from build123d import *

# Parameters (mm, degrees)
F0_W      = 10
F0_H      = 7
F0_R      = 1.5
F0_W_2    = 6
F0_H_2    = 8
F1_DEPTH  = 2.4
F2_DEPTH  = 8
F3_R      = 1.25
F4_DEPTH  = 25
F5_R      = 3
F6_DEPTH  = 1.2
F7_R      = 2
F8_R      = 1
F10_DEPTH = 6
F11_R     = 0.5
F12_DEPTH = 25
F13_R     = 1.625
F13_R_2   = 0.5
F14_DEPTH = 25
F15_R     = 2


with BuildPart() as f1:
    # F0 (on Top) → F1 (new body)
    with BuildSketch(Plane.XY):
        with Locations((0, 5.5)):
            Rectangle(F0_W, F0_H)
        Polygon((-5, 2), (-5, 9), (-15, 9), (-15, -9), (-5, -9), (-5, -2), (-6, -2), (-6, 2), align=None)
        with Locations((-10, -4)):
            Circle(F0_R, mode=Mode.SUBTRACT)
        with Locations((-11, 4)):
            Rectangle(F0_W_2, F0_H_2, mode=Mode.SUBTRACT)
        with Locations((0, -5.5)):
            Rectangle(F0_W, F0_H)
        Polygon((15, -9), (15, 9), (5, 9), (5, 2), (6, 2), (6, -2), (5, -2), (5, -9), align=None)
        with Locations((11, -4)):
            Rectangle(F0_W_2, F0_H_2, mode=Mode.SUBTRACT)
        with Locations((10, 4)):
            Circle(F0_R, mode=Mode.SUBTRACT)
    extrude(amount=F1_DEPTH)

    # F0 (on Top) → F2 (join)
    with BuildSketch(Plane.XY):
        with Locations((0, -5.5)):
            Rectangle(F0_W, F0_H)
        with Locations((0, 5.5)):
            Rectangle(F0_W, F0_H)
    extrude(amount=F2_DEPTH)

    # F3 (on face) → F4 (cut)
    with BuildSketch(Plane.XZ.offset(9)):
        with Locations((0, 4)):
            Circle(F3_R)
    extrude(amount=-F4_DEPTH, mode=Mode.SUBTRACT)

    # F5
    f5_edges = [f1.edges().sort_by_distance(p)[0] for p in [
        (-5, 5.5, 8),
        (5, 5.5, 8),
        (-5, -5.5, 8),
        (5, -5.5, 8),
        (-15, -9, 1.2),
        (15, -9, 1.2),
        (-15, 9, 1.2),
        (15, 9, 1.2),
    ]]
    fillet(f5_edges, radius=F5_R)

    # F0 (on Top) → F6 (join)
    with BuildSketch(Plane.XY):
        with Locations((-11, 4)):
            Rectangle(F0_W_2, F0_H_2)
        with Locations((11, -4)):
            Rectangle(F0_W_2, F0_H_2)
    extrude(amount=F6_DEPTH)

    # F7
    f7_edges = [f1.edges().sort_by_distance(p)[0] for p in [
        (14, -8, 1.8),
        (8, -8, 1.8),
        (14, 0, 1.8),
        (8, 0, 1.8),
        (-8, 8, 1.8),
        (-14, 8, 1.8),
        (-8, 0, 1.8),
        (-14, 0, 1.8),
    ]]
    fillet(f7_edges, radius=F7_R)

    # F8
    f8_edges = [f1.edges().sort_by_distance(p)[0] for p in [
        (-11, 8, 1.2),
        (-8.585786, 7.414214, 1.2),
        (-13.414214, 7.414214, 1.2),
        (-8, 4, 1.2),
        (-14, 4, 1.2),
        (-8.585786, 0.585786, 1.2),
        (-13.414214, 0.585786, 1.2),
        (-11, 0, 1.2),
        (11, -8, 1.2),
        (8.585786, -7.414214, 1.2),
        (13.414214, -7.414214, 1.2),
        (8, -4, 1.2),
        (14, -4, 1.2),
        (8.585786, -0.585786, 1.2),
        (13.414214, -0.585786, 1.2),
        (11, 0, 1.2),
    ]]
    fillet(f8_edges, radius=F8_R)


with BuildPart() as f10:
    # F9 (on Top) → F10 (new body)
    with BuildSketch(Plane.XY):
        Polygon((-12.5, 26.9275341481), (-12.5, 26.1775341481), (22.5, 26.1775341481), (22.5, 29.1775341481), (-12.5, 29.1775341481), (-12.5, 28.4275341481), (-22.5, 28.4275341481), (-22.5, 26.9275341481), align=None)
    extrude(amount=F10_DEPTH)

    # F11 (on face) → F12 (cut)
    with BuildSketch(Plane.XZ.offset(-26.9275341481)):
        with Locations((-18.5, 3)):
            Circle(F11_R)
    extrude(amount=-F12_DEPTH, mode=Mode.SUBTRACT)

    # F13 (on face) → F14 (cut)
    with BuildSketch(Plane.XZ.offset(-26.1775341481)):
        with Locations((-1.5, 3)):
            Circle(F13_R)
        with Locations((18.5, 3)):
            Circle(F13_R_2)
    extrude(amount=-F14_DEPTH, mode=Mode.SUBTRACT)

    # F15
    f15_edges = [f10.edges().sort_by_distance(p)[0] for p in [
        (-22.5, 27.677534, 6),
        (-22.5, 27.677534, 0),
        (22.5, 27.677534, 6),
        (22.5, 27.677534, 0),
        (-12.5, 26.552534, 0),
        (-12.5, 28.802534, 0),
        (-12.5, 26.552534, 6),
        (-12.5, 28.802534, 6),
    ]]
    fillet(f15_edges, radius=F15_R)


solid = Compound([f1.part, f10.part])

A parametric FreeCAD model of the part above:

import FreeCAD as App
import Part
import Sketcher
Q = App.Units.Quantity


def edges_at(feature, points):
    """Names of the edges that pass closest to the given points."""
    edges = feature.Shape.Edges
    near = lambda p: min(range(len(edges)), key=lambda i: edges[i].distToShape(Part.Vertex(*p))[0])
    return sorted({f"Edge{near(p) + 1}" for p in points})


def add_polygon(sketch, points):
    """Adds a closed chain of lines whose ends are joined by coincident constraints."""
    first, n = sketch.GeometryCount, len(points)
    for a, b in zip(points, points[1:] + points[:1]):
        sketch.addGeometry(Part.LineSegment(App.Vector(*a, 0), App.Vector(*b, 0)), False)
    for i in range(n):
        sketch.addConstraint(Sketcher.Constraint("Coincident", first + i, 2, first + (i + 1) % n, 1))

doc = App.newDocument("Part")
params = doc.addObject("Spreadsheet::Sheet", "Params")
for row, (alias, value) in enumerate([
    ("sketch1_diameter", "3 mm"),
    ("sketch1_width", "30 mm"),
    ("sketch1_width2", "6 mm"),
    ("sketch1_width3", "12 mm"),
    ("sketch1_height", "18 mm"),
    ("pad1_length", "2.4 mm"),
    ("sketch2_width", "10 mm"),
    ("sketch2_height", "7 mm"),
    ("pad2_length", "8 mm"),
    ("sketch3_diameter", "2.5 mm"),
    ("pocket1_length", "25 mm"),
    ("fillet_radius", "3 mm"),
    ("sketch4_width", "6 mm"),
    ("sketch4_height", "8 mm"),
    ("pad3_length", "1.2 mm"),
    ("fillet2_radius", "2 mm"),
    ("fillet3_radius", "1 mm"),
    ("sketch5_width", "35 mm"),
    ("sketch5_width2", "10 mm"),
    ("sketch5_height", "3 mm"),
    ("sketch5_height2", "1.5 mm"),
    ("pad4_length", "6 mm"),
    ("sketch6_diameter", "1 mm"),
    ("pocket2_length", "25 mm"),
    ("sketch7_diameter", "1 mm"),
    ("sketch7_diameter2", "3.25 mm"),
    ("pocket3_length", "25 mm"),
    ("fillet4_radius", "2 mm"),
], start=1):
    params.set(f"A{row}", alias)
    params.set(f"B{row}", "=" + value)
    params.setAlias(f"B{row}", alias)

body = doc.addObject("PartDesign::Body", "Body")

sketch1 = body.newObject("Sketcher::SketchObject", "Sketch")
sketch1.AttachmentSupport = (doc.getObject("XY_Plane"), [""])
sketch1.MapMode = "FlatFace"
add_polygon(sketch1, [(-15, 9), (-15, -9), (15, -9), (15, 9)])
sketch1.addGeometry(Part.Circle(App.Vector(-10, -4, 0), App.Vector(0, 0, 1), 1.5), False)
add_polygon(sketch1, [(14, -8), (8, -8), (8, 0), (14, 0)])
add_polygon(sketch1, [(-8, 0), (-14, 0), (-14, 8), (-8, 8)])
add_polygon(sketch1, [(-6, -2), (-6, 2), (6, 2), (6, -2)])
sketch1.addGeometry(Part.Circle(App.Vector(10, 4, 0), App.Vector(0, 0, 1), 1.5), False)
sketch1.addConstraint([
    Sketcher.Constraint("Vertical", 0),
    Sketcher.Constraint("Horizontal", 1),
    Sketcher.Constraint("Vertical", 2),
    Sketcher.Constraint("Horizontal", 3),
    Sketcher.Constraint("Horizontal", 5),
    Sketcher.Constraint("Vertical", 6),
    Sketcher.Constraint("Horizontal", 7),
    Sketcher.Constraint("Vertical", 8),
    Sketcher.Constraint("Horizontal", 9),
    Sketcher.Constraint("Vertical", 10),
    Sketcher.Constraint("Horizontal", 11),
    Sketcher.Constraint("Vertical", 12),
    Sketcher.Constraint("Vertical", 13),
    Sketcher.Constraint("Horizontal", 14),
    Sketcher.Constraint("Vertical", 15),
    Sketcher.Constraint("Horizontal", 16),
    Sketcher.Constraint("Equal", 4, 17),
    Sketcher.Constraint("Symmetric", 4, 3, 17, 3, -1, 1),
    Sketcher.Constraint("Symmetric", 0, 2, 2, 2, -1, 1),
    Sketcher.Constraint("Symmetric", 7, 2, 9, 2, -1, 1),
    Sketcher.Constraint("Symmetric", 5, 2, 11, 2, -1, 1),
    Sketcher.Constraint("Symmetric", 13, 2, 15, 2, -1, 1),
    Sketcher.Constraint("PointOnObject", 6, 2, -1),
    Sketcher.Constraint("Diameter", 4, Q("3 mm")),
    Sketcher.Constraint("DistanceX", 1, 1, 1, 2, Q("30 mm")),
    Sketcher.Constraint("DistanceX", 5, 2, 5, 1, Q("6 mm")),
    Sketcher.Constraint("DistanceX", 14, 1, 14, 2, Q("12 mm")),
    Sketcher.Constraint("DistanceY", 0, 2, 0, 1, Q("18 mm")),
    Sketcher.Constraint("DistanceY", 6, 1, 6, 2, Q("8 mm")),
    Sketcher.Constraint("DistanceY", 13, 1, 13, 2, Q("4 mm")),
    Sketcher.Constraint("DistanceX", 4, 3, -1, 1, Q("10 mm")),
    Sketcher.Constraint("DistanceY", 4, 3, -1, 1, Q("4 mm")),
    Sketcher.Constraint("DistanceX", -1, 1, 5, 2, Q("8 mm")),
])
sketch1.setExpression("Constraints[39]", "Params.sketch1_diameter")
sketch1.setExpression("Constraints[40]", "Params.sketch1_width")
sketch1.setExpression("Constraints[41]", "Params.sketch1_width2")
sketch1.setExpression("Constraints[42]", "Params.sketch1_width3")
sketch1.setExpression("Constraints[43]", "Params.sketch1_height")
pad1 = body.newObject("PartDesign::Pad", "Pad")
pad1.Profile = sketch1
pad1.setExpression("Length", "Params.pad1_length")

sketch2 = body.newObject("Sketcher::SketchObject", "Sketch001")
sketch2.AttachmentSupport = (doc.getObject("XY_Plane"), [""])
sketch2.MapMode = "FlatFace"
add_polygon(sketch2, [(-5, -2), (-5, -9), (5, -9), (5, -2)])
add_polygon(sketch2, [(-5, 9), (-5, 2), (5, 2), (5, 9)])
sketch2.addConstraint([
    Sketcher.Constraint("Vertical", 0),
    Sketcher.Constraint("Horizontal", 1),
    Sketcher.Constraint("Vertical", 2),
    Sketcher.Constraint("Horizontal", 3),
    Sketcher.Constraint("Vertical", 4),
    Sketcher.Constraint("Horizontal", 5),
    Sketcher.Constraint("Vertical", 6),
    Sketcher.Constraint("Horizontal", 7),
    Sketcher.Constraint("Symmetric", 2, 2, 4, 2, -1, 1),
    Sketcher.Constraint("Symmetric", 0, 2, 6, 2, -1, 1),
    Sketcher.Constraint("Vertical", 3, 2, 4, 2),
    Sketcher.Constraint("DistanceX", 1, 1, 1, 2, Q("10 mm")),
    Sketcher.Constraint("DistanceY", 0, 2, 0, 1, Q("7 mm")),
    Sketcher.Constraint("DistanceY", 0, 2, -1, 1, Q("9 mm")),
])
sketch2.setExpression("Constraints[19]", "Params.sketch2_width")
sketch2.setExpression("Constraints[20]", "Params.sketch2_height")
pad2 = body.newObject("PartDesign::Pad", "Pad001")
pad2.Profile = sketch2
pad2.setExpression("Length", "Params.pad2_length")

sketch3 = body.newObject("Sketcher::SketchObject", "Sketch002")
sketch3.AttachmentSupport = (doc.getObject("XZ_Plane"), [""])
sketch3.MapMode = "FlatFace"
sketch3.AttachmentOffset = App.Placement(App.Vector(0, 0, 9), App.Rotation())
sketch3.addGeometry(Part.Circle(App.Vector(0, 4, 0), App.Vector(0, 0, 1), 1.2), False)
sketch3.addConstraint([
    Sketcher.Constraint("PointOnObject", 0, 3, -2),
    Sketcher.Constraint("Diameter", 0, Q("2.5 mm")),
    Sketcher.Constraint("DistanceY", -1, 1, 0, 3, Q("4 mm")),
])
sketch3.setExpression("Constraints[1]", "Params.sketch3_diameter")
pocket1 = body.newObject("PartDesign::Pocket", "Pocket")
pocket1.Profile = sketch3
pocket1.setExpression("Length", "Params.pocket1_length")
doc.recompute()

fillet = body.newObject("PartDesign::Fillet", "Fillet")
fillet.Base = (pocket1, edges_at(pocket1, [
    (-5, 5.5, 8),
    (5, 5.5, 8),
    (-5, -5.5, 8),
    (5, -5.5, 8),
    (-15, -9, 1.2),
    (15, -9, 1.2),
    (-15, 9, 1.2),
    (15, 9, 1.2),
]))
fillet.setExpression("Radius", "Params.fillet_radius")

sketch4 = body.newObject("Sketcher::SketchObject", "Sketch003")
sketch4.AttachmentSupport = (doc.getObject("XY_Plane"), [""])
sketch4.MapMode = "FlatFace"
add_polygon(sketch4, [(-14, 8), (-14, 0), (-8, 0), (-8, 8)])
add_polygon(sketch4, [(8, 0), (8, -8), (14, -8), (14, 0)])
sketch4.addConstraint([
    Sketcher.Constraint("Vertical", 0),
    Sketcher.Constraint("Horizontal", 1),
    Sketcher.Constraint("Vertical", 2),
    Sketcher.Constraint("Horizontal", 3),
    Sketcher.Constraint("Vertical", 4),
    Sketcher.Constraint("Horizontal", 5),
    Sketcher.Constraint("Vertical", 6),
    Sketcher.Constraint("Horizontal", 7),
    Sketcher.Constraint("Symmetric", 2, 2, 4, 2, -1, 1),
    Sketcher.Constraint("Symmetric", 0, 2, 6, 2, -1, 1),
    Sketcher.Constraint("PointOnObject", 0, 2, -1),
    Sketcher.Constraint("DistanceX", 1, 1, 1, 2, Q("6 mm")),
    Sketcher.Constraint("DistanceY", 0, 2, 0, 1, Q("8 mm")),
    Sketcher.Constraint("DistanceX", 0, 2, -1, 1, Q("14 mm")),
])
sketch4.setExpression("Constraints[19]", "Params.sketch4_width")
sketch4.setExpression("Constraints[20]", "Params.sketch4_height")
pad3 = body.newObject("PartDesign::Pad", "Pad002")
pad3.Profile = sketch4
pad3.setExpression("Length", "Params.pad3_length")
doc.recompute()

fillet2 = body.newObject("PartDesign::Fillet", "Fillet001")
fillet2.Base = (pad3, edges_at(pad3, [
    (14, -8, 1.8),
    (8, -8, 1.8),
    (14, 0, 1.8),
    (8, 0, 1.8),
    (-8, 8, 1.8),
    (-14, 8, 1.8),
    (-8, 0, 1.8),
    (-14, 0, 1.8),
]))
fillet2.setExpression("Radius", "Params.fillet2_radius")
doc.recompute()

fillet3 = body.newObject("PartDesign::Fillet", "Fillet002")
fillet3.Base = (fillet2, edges_at(fillet2, [
    (-11, 8, 1.2),
    (-8.586, 7.414, 1.2),
    (-13.414, 7.414, 1.2),
    (-8, 4, 1.2),
    (-14, 4, 1.2),
    (-8.586, 0.586, 1.2),
    (-13.414, 0.586, 1.2),
    (-11, 0, 1.2),
    (11, -8, 1.2),
    (8.586, -7.414, 1.2),
    (13.414, -7.414, 1.2),
    (8, -4, 1.2),
    (14, -4, 1.2),
    (8.586, -0.586, 1.2),
    (13.414, -0.586, 1.2),
    (11, 0, 1.2),
]))
fillet3.setExpression("Radius", "Params.fillet3_radius")
body2 = doc.addObject("PartDesign::Body", "Body001")

sketch5 = body2.newObject("Sketcher::SketchObject", "Sketch004")
sketch5.AttachmentSupport = (doc.getObject("XY_Plane001"), [""])
sketch5.MapMode = "FlatFace"
add_polygon(sketch5, [(-12.5, 26.9), (-12.5, 26.2), (22.5, 26.2), (22.5, 29.2), (-12.5, 29.2), (-12.5, 28.4), (-22.5, 28.4), (-22.5, 26.9)])
sketch5.addConstraint([
    Sketcher.Constraint("Vertical", 0),
    Sketcher.Constraint("Horizontal", 1),
    Sketcher.Constraint("Vertical", 2),
    Sketcher.Constraint("Horizontal", 3),
    Sketcher.Constraint("Vertical", 4),
    Sketcher.Constraint("Horizontal", 5),
    Sketcher.Constraint("Vertical", 6),
    Sketcher.Constraint("Horizontal", 7),
    Sketcher.Constraint("Vertical", 0, 2, 3, 2),
    Sketcher.Constraint("Equal", 0, 4),
    Sketcher.Constraint("DistanceX", 1, 1, 1, 2, Q("35 mm")),
    Sketcher.Constraint("DistanceX", 5, 2, 5, 1, Q("10 mm")),
    Sketcher.Constraint("DistanceY", 2, 1, 2, 2, Q("3 mm")),
    Sketcher.Constraint("DistanceY", 6, 2, 6, 1, Q("1.5 mm")),
    Sketcher.Constraint("DistanceX", 0, 2, -1, 1, Q("12.5 mm")),
    Sketcher.Constraint("DistanceY", -1, 1, 0, 2, Q("26.177534 mm")),
])
sketch5.setExpression("Constraints[18]", "Params.sketch5_width")
sketch5.setExpression("Constraints[19]", "Params.sketch5_width2")
sketch5.setExpression("Constraints[20]", "Params.sketch5_height")
sketch5.setExpression("Constraints[21]", "Params.sketch5_height2")
pad4 = body2.newObject("PartDesign::Pad", "Pad003")
pad4.Profile = sketch5
pad4.setExpression("Length", "Params.pad4_length")

sketch6 = body2.newObject("Sketcher::SketchObject", "Sketch005")
sketch6.AttachmentSupport = (doc.getObject("XZ_Plane001"), [""])
sketch6.MapMode = "FlatFace"
sketch6.AttachmentOffset = App.Placement(App.Vector(0, 0, -26.927534), App.Rotation())
sketch6.addGeometry(Part.Circle(App.Vector(-18.5, 3, 0), App.Vector(0, 0, 1), 0.5), False)
sketch6.addConstraint([
    Sketcher.Constraint("Diameter", 0, Q("1 mm")),
    Sketcher.Constraint("DistanceY", -1, 1, 0, 3, Q("3 mm")),
    Sketcher.Constraint("DistanceX", 0, 3, -1, 1, Q("18.5 mm")),
])
sketch6.setExpression("Constraints[0]", "Params.sketch6_diameter")
pocket2 = body2.newObject("PartDesign::Pocket", "Pocket001")
pocket2.Profile = sketch6
pocket2.setExpression("Length", "Params.pocket2_length")

sketch7 = body2.newObject("Sketcher::SketchObject", "Sketch006")
sketch7.AttachmentSupport = (doc.getObject("XZ_Plane001"), [""])
sketch7.MapMode = "FlatFace"
sketch7.AttachmentOffset = App.Placement(App.Vector(0, 0, -26.177534), App.Rotation())
sketch7.addGeometry([
    Part.Circle(App.Vector(-1.5, 3, 0), App.Vector(0, 0, 1), 1.6),
    Part.Circle(App.Vector(18.5, 3, 0), App.Vector(0, 0, 1), 0.5),
], False)
sketch7.addConstraint([
    Sketcher.Constraint("Horizontal", 0, 3, 1, 3),
    Sketcher.Constraint("Diameter", 1, Q("1 mm")),
    Sketcher.Constraint("Diameter", 0, Q("3.25 mm")),
    Sketcher.Constraint("DistanceY", -1, 1, 0, 3, Q("3 mm")),
    Sketcher.Constraint("DistanceX", 0, 3, 1, 3, Q("20 mm")),
    Sketcher.Constraint("DistanceX", 0, 3, -1, 1, Q("1.5 mm")),
])
sketch7.setExpression("Constraints[1]", "Params.sketch7_diameter")
sketch7.setExpression("Constraints[2]", "Params.sketch7_diameter2")
pocket3 = body2.newObject("PartDesign::Pocket", "Pocket002")
pocket3.Profile = sketch7
pocket3.setExpression("Length", "Params.pocket3_length")
doc.recompute()

fillet4 = body2.newObject("PartDesign::Fillet", "Fillet003")
fillet4.Base = (pocket3, edges_at(pocket3, [
    (-22.5, 27.678, 6),
    (-22.5, 27.678, 0),
    (22.5, 27.678, 6),
    (22.5, 27.678, 0),
    (-12.5, 26.553, 0),
    (-12.5, 28.803, 0),
    (-12.5, 26.553, 6),
    (-12.5, 28.803, 6),
]))
fillet4.setExpression("Radius", "Params.fillet4_radius")

doc.recompute()
